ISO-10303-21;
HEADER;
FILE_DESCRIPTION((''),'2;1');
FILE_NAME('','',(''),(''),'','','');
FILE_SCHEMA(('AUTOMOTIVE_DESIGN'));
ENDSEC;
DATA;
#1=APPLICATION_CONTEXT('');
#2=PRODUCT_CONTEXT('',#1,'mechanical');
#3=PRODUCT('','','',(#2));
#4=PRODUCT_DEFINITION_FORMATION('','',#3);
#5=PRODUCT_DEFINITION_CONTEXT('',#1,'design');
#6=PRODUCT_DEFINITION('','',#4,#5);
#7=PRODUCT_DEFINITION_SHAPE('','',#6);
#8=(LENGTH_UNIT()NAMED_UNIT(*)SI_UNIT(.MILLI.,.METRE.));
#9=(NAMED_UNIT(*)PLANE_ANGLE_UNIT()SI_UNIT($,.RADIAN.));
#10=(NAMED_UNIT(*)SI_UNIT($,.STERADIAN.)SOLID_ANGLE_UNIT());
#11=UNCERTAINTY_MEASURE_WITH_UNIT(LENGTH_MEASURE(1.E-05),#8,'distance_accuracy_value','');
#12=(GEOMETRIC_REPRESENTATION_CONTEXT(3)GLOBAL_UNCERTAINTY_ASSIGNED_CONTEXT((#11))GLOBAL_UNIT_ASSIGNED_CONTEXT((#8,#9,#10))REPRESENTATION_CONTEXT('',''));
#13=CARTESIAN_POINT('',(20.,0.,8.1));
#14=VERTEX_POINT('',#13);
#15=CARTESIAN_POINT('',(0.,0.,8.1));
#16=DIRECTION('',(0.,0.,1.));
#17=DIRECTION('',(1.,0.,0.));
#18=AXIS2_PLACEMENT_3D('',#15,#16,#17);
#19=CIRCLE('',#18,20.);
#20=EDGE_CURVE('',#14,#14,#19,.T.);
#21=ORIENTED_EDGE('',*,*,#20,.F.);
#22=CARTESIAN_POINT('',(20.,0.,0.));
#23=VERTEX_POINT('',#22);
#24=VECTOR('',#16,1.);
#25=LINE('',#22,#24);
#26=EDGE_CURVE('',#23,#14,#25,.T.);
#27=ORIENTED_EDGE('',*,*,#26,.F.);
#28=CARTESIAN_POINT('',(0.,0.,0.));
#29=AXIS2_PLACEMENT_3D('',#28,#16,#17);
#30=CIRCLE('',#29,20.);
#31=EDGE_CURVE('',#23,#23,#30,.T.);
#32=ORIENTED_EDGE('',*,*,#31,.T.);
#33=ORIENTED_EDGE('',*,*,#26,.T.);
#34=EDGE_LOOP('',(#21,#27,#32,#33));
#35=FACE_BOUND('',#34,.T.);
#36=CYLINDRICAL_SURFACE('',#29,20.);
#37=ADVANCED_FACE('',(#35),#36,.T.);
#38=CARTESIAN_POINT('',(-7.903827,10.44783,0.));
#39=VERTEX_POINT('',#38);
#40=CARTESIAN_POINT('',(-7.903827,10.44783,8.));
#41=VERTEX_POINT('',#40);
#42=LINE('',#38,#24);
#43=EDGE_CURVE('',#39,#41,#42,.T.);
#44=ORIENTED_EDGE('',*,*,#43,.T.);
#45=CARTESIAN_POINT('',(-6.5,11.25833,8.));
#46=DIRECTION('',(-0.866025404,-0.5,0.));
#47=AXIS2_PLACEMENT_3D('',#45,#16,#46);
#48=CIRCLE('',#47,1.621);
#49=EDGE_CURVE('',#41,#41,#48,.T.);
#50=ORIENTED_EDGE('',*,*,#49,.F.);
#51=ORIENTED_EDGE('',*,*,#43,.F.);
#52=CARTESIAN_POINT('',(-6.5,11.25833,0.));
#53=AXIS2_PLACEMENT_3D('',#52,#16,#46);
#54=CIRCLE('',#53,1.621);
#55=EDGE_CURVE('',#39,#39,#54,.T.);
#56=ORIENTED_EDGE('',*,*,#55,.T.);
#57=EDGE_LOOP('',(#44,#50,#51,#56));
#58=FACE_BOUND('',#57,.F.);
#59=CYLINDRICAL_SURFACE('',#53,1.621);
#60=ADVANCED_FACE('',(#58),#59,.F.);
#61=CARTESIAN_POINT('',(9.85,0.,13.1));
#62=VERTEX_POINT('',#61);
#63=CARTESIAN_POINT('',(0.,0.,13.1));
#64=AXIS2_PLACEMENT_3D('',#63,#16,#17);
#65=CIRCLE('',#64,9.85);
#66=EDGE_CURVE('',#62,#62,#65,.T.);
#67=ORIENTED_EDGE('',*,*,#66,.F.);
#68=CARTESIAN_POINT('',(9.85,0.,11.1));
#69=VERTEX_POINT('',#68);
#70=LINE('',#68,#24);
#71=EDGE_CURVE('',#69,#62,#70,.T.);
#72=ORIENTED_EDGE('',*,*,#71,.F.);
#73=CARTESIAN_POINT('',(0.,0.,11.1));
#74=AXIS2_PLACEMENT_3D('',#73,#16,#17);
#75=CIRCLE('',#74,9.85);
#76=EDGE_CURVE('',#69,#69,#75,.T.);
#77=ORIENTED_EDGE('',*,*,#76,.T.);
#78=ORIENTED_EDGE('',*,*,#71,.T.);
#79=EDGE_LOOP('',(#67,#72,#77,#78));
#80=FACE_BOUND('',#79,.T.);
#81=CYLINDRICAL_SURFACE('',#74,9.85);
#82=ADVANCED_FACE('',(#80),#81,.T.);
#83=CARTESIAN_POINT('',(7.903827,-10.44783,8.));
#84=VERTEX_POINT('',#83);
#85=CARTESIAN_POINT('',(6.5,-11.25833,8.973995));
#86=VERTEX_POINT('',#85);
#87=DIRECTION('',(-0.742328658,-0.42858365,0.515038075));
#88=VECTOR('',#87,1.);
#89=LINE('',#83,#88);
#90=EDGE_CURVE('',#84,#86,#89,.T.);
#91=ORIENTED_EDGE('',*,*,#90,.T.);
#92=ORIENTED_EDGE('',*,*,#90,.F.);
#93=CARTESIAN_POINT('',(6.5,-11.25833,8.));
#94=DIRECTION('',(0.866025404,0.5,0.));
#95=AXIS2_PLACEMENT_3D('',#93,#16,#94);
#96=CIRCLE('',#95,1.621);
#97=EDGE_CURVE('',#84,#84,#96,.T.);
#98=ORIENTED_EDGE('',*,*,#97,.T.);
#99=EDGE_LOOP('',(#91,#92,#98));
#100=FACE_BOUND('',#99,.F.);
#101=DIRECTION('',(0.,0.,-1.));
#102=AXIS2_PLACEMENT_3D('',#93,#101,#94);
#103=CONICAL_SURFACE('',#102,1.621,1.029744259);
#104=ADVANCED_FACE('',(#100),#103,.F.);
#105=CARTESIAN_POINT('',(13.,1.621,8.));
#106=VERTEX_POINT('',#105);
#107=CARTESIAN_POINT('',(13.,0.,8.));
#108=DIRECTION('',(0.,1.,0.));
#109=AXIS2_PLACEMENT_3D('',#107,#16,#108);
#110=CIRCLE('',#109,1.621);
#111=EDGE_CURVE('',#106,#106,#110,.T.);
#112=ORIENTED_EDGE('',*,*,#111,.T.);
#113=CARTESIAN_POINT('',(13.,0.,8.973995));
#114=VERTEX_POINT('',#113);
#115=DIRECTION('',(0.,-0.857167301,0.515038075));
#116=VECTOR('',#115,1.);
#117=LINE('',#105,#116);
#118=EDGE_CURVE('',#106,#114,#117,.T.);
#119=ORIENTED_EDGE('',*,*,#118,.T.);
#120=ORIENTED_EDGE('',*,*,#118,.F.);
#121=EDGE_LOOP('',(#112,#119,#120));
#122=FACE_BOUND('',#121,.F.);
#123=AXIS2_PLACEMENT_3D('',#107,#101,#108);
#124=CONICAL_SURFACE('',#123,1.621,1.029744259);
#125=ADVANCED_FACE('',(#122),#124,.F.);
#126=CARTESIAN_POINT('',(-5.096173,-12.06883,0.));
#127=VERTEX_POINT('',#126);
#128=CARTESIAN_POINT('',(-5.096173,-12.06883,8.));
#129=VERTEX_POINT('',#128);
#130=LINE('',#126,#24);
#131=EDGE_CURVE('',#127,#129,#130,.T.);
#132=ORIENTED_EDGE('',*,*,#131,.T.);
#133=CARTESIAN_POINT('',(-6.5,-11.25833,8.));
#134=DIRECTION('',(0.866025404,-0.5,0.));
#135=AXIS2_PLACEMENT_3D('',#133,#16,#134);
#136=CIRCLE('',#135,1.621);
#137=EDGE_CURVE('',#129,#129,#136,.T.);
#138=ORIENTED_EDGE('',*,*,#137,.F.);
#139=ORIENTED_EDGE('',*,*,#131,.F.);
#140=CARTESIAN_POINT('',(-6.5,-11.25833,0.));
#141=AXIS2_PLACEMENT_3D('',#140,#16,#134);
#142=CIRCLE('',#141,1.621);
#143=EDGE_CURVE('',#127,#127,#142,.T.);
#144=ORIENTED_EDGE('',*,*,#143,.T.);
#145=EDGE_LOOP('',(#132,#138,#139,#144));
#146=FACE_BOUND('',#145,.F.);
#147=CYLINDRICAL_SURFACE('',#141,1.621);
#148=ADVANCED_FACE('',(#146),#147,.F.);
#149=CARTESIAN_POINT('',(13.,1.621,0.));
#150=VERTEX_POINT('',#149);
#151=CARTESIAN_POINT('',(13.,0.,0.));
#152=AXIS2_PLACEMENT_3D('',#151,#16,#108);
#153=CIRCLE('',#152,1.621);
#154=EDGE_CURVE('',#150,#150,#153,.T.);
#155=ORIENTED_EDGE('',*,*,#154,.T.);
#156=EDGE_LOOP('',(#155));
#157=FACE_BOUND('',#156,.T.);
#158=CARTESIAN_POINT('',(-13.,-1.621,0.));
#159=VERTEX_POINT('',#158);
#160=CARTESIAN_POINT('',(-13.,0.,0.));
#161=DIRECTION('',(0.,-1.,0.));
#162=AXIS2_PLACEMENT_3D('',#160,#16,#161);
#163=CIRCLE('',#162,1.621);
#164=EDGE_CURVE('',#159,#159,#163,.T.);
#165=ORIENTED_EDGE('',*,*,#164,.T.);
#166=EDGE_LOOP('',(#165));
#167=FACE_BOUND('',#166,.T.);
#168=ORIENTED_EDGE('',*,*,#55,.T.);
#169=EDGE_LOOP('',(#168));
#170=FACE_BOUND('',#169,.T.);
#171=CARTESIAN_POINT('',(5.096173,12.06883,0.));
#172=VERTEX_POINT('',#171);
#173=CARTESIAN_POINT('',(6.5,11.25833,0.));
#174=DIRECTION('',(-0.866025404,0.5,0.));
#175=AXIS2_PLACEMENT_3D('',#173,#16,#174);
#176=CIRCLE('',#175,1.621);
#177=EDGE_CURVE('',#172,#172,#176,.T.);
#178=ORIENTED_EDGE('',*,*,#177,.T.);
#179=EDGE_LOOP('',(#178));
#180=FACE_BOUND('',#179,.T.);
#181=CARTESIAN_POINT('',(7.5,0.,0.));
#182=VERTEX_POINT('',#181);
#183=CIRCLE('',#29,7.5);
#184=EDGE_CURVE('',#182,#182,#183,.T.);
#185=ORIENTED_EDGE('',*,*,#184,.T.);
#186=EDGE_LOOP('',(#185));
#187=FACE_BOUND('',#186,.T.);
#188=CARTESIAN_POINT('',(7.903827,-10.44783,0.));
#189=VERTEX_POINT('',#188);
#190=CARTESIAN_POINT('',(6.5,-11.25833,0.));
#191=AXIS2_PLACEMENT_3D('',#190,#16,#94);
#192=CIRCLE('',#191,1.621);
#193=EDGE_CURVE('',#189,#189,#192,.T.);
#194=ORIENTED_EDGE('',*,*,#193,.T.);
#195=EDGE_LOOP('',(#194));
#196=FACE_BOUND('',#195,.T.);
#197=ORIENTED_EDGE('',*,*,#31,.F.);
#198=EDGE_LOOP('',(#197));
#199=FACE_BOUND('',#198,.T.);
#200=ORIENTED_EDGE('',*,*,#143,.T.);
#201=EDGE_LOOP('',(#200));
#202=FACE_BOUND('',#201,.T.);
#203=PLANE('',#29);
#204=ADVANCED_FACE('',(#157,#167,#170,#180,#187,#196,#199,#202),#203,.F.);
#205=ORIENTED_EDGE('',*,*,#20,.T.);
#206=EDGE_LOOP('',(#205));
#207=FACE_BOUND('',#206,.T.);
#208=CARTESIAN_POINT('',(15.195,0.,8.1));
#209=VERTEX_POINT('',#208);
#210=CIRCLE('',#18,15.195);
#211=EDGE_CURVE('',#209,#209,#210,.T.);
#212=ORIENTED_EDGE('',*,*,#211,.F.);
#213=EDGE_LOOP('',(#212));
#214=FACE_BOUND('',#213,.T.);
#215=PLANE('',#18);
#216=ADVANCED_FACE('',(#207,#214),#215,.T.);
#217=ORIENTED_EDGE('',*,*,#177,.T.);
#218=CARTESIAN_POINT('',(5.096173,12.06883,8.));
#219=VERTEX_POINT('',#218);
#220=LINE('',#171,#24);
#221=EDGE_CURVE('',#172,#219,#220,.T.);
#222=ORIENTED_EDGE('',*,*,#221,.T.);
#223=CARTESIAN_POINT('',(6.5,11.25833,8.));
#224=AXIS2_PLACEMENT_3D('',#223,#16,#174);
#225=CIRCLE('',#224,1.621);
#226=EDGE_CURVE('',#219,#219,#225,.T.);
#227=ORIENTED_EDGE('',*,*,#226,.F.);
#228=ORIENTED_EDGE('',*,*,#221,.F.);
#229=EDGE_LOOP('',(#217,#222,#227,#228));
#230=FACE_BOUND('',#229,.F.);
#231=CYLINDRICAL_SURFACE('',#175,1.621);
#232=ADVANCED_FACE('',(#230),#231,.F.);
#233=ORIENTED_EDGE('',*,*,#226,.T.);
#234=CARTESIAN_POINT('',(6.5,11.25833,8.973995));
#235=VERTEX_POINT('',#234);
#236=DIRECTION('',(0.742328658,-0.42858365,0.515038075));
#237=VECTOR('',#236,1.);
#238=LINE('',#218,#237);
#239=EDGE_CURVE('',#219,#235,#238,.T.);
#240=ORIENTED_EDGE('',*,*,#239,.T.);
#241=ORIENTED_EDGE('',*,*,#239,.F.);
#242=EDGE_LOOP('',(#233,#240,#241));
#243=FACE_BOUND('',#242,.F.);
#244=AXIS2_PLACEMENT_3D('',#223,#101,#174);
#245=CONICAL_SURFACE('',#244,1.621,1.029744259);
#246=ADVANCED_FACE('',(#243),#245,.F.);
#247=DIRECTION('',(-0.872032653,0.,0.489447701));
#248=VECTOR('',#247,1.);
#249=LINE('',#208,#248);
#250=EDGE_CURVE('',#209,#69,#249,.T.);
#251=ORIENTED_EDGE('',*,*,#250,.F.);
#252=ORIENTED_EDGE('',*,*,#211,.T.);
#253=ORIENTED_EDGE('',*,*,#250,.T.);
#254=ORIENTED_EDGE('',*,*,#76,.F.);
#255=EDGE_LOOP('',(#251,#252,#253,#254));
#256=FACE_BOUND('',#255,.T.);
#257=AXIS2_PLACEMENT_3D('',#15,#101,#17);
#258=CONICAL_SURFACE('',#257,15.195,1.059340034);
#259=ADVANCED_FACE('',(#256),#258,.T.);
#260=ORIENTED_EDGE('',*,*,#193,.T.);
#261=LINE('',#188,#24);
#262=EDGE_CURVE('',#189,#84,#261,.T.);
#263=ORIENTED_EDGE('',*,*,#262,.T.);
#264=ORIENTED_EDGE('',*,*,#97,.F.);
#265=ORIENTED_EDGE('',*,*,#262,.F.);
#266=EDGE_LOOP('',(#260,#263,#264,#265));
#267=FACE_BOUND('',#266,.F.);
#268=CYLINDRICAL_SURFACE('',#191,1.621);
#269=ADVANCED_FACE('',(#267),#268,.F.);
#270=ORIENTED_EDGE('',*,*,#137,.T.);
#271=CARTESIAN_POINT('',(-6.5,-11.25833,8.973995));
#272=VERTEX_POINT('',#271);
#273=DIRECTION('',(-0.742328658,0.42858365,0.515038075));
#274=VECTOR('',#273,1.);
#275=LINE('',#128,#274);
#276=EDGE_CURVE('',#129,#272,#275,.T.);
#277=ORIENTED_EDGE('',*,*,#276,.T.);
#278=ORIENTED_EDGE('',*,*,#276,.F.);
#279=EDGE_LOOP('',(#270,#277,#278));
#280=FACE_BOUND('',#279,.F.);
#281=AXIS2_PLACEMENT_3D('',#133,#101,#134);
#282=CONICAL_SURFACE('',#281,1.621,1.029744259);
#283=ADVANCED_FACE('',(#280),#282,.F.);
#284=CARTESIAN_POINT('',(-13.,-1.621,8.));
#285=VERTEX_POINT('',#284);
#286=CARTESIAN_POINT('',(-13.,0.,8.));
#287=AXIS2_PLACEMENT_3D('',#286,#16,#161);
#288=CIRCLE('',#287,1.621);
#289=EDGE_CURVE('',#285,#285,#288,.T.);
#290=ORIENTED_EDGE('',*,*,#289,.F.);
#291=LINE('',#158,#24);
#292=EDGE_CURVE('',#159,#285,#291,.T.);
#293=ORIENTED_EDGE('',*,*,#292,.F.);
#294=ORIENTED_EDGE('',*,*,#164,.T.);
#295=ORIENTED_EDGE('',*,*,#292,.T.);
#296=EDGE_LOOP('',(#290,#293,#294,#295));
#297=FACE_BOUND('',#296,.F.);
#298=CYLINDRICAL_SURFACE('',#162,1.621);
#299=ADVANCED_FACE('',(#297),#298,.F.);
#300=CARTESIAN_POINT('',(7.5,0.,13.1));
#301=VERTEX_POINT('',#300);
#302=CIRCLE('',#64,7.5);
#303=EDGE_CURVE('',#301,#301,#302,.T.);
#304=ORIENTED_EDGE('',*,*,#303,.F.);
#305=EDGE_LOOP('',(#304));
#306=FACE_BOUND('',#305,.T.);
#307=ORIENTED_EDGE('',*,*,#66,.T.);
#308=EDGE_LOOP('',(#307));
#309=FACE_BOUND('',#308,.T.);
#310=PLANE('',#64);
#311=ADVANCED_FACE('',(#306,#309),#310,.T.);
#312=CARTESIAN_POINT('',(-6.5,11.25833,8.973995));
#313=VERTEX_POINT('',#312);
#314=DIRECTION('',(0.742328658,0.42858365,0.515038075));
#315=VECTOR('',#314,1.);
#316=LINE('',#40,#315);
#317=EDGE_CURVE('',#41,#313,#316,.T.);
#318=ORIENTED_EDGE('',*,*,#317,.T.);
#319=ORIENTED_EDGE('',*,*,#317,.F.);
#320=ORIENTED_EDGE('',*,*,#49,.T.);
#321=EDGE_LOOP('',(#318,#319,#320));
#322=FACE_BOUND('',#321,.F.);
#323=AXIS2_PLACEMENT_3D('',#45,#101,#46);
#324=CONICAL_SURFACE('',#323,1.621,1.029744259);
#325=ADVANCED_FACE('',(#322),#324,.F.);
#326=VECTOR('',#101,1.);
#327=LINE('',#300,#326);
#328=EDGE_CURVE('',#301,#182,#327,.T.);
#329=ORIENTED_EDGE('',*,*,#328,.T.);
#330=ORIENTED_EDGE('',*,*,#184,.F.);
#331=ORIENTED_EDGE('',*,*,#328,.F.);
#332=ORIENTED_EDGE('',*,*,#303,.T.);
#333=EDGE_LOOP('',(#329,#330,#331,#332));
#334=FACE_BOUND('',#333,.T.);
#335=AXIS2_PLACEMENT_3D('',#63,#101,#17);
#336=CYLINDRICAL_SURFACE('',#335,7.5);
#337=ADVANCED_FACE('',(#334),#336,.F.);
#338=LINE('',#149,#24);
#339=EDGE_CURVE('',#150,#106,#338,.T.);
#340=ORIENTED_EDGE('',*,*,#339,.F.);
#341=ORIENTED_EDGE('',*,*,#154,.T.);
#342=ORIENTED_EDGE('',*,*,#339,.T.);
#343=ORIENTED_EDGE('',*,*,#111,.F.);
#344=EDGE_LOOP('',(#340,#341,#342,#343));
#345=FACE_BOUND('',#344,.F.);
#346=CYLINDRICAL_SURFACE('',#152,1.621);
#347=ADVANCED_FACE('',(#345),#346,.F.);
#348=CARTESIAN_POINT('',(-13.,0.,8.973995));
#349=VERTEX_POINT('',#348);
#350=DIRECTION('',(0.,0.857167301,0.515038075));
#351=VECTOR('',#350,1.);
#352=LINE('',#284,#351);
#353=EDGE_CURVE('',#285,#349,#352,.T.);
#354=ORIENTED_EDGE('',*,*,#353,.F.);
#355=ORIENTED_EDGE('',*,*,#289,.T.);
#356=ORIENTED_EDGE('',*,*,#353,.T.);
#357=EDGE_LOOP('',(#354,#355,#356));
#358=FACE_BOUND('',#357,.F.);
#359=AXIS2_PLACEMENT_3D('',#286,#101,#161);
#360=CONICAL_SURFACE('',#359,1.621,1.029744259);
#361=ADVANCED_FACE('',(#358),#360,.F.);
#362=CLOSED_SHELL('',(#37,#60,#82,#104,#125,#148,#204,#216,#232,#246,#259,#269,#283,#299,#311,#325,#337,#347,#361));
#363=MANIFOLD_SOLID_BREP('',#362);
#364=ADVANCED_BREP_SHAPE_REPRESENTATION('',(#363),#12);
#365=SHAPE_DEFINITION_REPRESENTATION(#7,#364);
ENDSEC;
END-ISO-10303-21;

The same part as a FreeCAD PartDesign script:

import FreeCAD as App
import Part
import Sketcher
from FreeCAD import Vector
Q = App.Units.Quantity


def add_polygon(sketch, points):
    """Adds a closed chain of lines whose ends are joined by coincident constraints."""
    first, n = sketch.GeometryCount, len(points)
    for a, b in zip(points, points[1:] + points[:1]):
        sketch.addGeometry(Part.LineSegment(App.Vector(*a, 0), App.Vector(*b, 0)), False)
    for i in range(n):
        sketch.addConstraint(Sketcher.Constraint("Coincident", first + i, 2, first + (i + 1) % n, 1))

doc = App.newDocument("Part")
body = doc.addObject("PartDesign::Body", "Body")

sketch1 = body.newObject("Sketcher::SketchObject", "Sketch")
sketch1.AttachmentSupport = (doc.getObject("XZ_Plane"), [""])
sketch1.MapMode = "FlatFace"
add_polygon(sketch1, [(9.8, 13.1), (7.5, 13.1), (7.5, 0), (20, 0), (20, 8.1), (15.2, 8.1), (9.8, 11.1)])
sketch1.addConstraint(Sketcher.Constraint("Horizontal", 0))
sketch1.addConstraint(Sketcher.Constraint("Vertical", 1))
sketch1.addConstraint(Sketcher.Constraint("Horizontal", 2))
sketch1.addConstraint(Sketcher.Constraint("Vertical", 3))
sketch1.addConstraint(Sketcher.Constraint("Horizontal", 4))
sketch1.addConstraint(Sketcher.Constraint("Vertical", 6))
sketch1.addConstraint(Sketcher.Constraint("PointOnObject", 1, 2, -1))
sketch1.addConstraint(Sketcher.Constraint("DistanceY", 6, 1, 6, 2, Q("2 mm")))
sketch1.addConstraint(Sketcher.Constraint("DistanceX", -1, 1, 5, 2, Q("9.85 mm")))
sketch1.addConstraint(Sketcher.Constraint("DistanceX", 2, 1, 2, 2, Q("12.5 mm")))
sketch1.addConstraint(Sketcher.Constraint("DistanceY", 1, 2, 1, 1, Q("13.1 mm")))
sketch1.addConstraint(Sketcher.Constraint("DistanceY", 3, 1, 3, 2, Q("8.1 mm")))
sketch1.addConstraint(Sketcher.Constraint("DistanceX", -1, 1, 2, 2, Q("20 mm")))
sketch1.addConstraint(Sketcher.Constraint("DistanceX", 4, 2, 4, 1, Q("4.805 mm")))
revolution = body.newObject("PartDesign::Revolution", "Revolution")
revolution.Profile = sketch1
revolution.ReferenceAxis = (sketch1, ["V_Axis"])
revolution.Angle = 360

sketch2 = body.newObject("Sketcher::SketchObject", "Sketch001")
sketch2.AttachmentSupport = (doc.getObject("XY_Plane"), [""])
sketch2.MapMode = "FlatFace"
sketch2.addGeometry(Part.Circle(Vector(13, 0, 0), Vector(0, 0, 1), 1.6), False)
sketch2.addConstraint(Sketcher.Constraint("PointOnObject", 0, 3, -1))
sketch2.addConstraint(Sketcher.Constraint("Diameter", 0, Q("3.242 mm")))
sketch2.addConstraint(Sketcher.Constraint("DistanceX", -1, 1, 0, 3, Q("13 mm")))
doc.recompute()
hole = body.newObject("PartDesign::Hole", "Hole")
hole.Profile = sketch2
hole.ThreadType = "None"
hole.Diameter = 3.242
hole.DepthType = "Dimension"
hole.Depth = 8
hole.DrillPoint = "Angled"
hole.DrillPointAngle = 118
hole.Reversed = True
doc.recompute()

polarpattern = body.newObject("PartDesign::PolarPattern", "PolarPattern")
polarpattern.Originals = [hole]
polarpattern.Axis = (doc.getObject("Z_Axis"), [""])
polarpattern.Angle = 360
polarpattern.Occurrences = 6
body.Tip = polarpattern

doc.recompute()
